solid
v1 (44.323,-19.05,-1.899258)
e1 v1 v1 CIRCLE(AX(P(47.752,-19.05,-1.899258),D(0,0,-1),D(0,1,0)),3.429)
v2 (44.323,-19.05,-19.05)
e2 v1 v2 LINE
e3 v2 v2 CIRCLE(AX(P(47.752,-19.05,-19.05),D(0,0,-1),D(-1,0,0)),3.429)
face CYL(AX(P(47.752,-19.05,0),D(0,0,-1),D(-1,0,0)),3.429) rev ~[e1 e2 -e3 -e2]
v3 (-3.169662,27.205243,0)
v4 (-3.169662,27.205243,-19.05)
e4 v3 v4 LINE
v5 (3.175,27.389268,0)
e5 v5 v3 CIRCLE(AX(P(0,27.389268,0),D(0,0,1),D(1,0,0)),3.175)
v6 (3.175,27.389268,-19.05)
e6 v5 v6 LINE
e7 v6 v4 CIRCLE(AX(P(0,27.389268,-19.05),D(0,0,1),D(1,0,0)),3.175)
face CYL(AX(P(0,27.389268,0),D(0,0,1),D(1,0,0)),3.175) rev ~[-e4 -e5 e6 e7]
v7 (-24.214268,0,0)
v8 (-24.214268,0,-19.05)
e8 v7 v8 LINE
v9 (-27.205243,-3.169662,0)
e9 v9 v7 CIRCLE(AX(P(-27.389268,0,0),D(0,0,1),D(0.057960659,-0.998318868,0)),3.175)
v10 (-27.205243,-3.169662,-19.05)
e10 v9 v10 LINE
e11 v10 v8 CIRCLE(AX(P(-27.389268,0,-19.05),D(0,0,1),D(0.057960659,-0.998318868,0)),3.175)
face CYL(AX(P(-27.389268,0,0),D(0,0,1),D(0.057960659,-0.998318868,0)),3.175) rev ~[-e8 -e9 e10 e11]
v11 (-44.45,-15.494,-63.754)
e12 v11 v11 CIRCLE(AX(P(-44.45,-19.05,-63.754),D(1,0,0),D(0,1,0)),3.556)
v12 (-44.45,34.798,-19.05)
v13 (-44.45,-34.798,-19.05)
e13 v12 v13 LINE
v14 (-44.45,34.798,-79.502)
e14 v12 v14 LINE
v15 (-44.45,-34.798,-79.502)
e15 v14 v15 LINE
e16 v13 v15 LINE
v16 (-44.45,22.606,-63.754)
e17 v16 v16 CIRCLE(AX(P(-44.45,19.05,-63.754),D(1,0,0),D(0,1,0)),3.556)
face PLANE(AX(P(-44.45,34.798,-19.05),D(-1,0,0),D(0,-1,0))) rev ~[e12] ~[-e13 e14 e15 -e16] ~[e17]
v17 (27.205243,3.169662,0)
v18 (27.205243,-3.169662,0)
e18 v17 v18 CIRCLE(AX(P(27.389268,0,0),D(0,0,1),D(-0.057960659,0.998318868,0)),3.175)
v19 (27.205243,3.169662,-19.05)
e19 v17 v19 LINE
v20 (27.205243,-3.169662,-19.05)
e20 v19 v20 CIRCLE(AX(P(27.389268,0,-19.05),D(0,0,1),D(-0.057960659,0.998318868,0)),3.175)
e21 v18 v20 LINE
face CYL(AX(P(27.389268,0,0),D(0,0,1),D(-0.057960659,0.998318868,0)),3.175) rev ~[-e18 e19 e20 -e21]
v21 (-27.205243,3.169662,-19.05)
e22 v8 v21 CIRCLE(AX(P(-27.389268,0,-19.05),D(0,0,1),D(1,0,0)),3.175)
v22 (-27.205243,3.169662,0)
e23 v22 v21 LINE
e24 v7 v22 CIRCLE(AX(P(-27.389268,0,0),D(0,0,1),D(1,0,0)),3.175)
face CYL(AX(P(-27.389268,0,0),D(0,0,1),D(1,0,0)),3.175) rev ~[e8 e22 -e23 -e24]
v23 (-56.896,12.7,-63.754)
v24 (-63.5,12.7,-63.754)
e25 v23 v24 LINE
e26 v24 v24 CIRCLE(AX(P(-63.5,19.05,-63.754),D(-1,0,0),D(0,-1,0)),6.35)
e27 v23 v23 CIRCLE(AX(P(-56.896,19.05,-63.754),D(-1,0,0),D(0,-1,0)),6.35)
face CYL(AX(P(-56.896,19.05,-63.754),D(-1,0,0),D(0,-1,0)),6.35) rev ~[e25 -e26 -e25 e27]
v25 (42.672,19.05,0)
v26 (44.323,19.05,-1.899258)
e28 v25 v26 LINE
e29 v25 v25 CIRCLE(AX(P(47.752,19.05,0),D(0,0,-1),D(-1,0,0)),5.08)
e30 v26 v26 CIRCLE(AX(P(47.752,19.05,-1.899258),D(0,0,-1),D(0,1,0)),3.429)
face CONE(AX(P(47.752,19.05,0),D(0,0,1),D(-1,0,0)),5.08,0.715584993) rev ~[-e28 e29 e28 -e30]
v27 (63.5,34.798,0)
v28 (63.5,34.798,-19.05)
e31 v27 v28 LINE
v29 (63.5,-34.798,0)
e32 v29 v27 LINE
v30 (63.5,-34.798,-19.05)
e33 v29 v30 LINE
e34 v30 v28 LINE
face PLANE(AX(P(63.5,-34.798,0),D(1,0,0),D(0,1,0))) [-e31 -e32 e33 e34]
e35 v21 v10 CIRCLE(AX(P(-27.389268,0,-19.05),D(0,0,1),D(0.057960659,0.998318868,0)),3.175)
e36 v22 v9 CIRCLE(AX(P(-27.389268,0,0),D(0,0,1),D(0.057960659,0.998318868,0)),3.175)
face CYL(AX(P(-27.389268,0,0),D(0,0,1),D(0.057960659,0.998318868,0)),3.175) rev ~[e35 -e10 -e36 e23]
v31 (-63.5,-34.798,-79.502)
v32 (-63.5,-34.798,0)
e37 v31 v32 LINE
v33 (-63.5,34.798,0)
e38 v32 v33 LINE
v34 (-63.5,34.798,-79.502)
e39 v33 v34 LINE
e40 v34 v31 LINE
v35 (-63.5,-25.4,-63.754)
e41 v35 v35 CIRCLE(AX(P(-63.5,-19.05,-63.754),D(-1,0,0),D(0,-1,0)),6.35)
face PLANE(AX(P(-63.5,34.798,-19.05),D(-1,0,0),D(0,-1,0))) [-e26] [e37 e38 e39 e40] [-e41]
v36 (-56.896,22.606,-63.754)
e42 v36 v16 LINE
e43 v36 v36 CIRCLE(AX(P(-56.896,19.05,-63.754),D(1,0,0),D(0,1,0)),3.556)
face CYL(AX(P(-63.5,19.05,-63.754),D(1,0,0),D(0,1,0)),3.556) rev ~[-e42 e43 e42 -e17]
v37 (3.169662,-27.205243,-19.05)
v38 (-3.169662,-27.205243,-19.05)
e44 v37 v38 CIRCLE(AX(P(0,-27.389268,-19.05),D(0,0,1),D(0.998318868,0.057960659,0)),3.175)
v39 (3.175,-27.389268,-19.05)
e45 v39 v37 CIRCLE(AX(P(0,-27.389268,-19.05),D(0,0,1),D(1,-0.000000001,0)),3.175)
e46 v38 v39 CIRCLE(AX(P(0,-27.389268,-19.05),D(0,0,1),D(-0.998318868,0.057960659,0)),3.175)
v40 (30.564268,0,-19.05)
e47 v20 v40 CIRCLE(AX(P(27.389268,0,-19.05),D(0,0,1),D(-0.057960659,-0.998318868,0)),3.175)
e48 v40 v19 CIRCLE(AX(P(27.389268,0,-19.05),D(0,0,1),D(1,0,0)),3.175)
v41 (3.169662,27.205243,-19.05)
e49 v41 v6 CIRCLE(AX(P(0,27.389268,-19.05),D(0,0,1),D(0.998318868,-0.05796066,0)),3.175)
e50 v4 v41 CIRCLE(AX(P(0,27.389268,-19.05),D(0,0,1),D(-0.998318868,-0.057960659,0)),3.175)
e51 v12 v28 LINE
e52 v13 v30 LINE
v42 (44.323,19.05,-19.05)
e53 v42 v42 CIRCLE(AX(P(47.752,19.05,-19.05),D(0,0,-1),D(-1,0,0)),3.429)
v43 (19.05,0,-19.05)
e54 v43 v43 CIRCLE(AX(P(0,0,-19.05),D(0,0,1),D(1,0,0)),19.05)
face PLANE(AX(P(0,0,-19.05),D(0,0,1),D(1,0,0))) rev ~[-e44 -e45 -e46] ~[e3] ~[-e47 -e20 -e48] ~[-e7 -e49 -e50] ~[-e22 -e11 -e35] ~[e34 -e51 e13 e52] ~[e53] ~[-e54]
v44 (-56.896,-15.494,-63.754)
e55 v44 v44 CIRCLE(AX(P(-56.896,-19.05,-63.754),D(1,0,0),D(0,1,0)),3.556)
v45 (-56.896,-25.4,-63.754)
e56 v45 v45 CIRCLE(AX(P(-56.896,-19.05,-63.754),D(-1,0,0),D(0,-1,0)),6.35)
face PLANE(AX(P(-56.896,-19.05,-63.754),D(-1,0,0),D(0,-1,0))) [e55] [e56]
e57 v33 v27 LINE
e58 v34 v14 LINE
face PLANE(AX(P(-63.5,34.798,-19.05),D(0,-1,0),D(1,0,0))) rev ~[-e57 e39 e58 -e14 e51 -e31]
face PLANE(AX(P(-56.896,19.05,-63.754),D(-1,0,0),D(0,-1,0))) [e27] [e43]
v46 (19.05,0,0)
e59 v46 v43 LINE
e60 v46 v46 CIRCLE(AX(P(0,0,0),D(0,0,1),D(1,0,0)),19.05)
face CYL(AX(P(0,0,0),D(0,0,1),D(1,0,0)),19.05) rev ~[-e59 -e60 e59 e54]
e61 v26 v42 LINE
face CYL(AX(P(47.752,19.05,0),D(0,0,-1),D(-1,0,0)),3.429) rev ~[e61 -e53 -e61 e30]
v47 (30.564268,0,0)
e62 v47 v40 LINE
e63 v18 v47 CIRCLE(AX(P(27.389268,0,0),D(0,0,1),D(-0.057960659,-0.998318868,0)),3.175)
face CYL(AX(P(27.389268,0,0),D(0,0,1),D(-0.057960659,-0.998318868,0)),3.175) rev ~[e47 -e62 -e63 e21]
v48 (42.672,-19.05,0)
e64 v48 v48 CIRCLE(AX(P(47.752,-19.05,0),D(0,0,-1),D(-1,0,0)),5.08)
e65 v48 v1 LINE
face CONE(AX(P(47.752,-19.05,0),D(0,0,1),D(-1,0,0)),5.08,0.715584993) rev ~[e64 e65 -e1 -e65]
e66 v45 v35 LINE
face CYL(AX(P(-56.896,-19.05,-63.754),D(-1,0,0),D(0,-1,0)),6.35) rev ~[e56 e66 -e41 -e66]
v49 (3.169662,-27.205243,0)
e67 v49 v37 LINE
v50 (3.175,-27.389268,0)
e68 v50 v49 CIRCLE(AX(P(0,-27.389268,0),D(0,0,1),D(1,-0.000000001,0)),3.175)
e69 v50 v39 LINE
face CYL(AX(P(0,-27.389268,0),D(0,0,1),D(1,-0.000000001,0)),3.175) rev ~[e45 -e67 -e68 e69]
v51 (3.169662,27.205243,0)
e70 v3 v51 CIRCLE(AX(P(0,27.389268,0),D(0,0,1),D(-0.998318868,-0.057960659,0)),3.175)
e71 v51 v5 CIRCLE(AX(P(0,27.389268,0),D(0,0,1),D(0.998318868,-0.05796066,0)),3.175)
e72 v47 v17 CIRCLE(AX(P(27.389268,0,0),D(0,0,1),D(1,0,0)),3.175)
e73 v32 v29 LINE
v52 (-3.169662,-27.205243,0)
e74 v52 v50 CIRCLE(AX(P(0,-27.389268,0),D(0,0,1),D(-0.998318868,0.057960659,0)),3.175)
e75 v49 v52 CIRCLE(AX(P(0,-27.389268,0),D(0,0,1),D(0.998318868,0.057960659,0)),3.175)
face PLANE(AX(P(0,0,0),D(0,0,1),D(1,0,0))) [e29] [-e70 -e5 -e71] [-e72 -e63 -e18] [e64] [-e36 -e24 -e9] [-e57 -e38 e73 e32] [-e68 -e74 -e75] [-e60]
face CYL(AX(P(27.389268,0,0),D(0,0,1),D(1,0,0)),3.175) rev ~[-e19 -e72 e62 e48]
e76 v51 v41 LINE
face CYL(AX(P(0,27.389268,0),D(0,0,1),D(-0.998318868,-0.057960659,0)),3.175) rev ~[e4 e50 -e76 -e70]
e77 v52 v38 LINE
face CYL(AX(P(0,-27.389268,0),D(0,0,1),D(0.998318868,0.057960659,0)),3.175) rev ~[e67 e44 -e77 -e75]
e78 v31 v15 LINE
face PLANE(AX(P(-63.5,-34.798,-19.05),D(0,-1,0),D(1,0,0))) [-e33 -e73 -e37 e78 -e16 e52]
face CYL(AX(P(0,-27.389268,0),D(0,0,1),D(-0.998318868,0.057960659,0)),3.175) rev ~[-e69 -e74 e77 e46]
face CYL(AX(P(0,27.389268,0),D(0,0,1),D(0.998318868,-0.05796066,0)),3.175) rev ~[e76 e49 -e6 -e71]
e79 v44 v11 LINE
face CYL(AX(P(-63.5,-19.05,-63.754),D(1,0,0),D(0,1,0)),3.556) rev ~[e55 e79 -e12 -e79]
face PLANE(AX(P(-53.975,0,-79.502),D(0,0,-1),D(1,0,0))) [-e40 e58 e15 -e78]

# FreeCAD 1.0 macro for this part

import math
import FreeCAD as App
import Part
import Sketcher
from FreeCAD import Vector
Q = App.Units.Quantity


def add_polygon(sketch, points):
    """Adds a closed chain of lines whose ends are joined by coincident constraints."""
    first, n = sketch.GeometryCount, len(points)
    for a, b in zip(points, points[1:] + points[:1]):
        sketch.addGeometry(Part.LineSegment(App.Vector(*a, 0), App.Vector(*b, 0)), False)
    for i in range(n):
        sketch.addConstraint(Sketcher.Constraint("Coincident", first + i, 2, first + (i + 1) % n, 1))

doc = App.newDocument("Part")
params = doc.addObject("Spreadsheet::Sheet", "Params")
for row, (alias, value) in enumerate([
    ("sketch1_width", "5 in"),
    ("sketch1_height", "2.74 in"),
    ("pad1_length", "0.75 in"),
    ("sketch2_width", "0.75 in"),
    ("sketch2_height", "2.74 in"),
    ("pad2_length", "2.38 in"),
    ("sketch3_diameter", "1.5 in"),
    ("pocket1_length", "1 in"),
    ("sketch4_radius", "0.125 in"),
    ("pocket2_length", "1 in"),
    ("sketch5_diameter", "0.27 in"),
    ("hole_diameter", "0.27 in"),
    ("hole_depth", "1 in"),
    ("hole_csink_diameter", "0.4 in"),
    ("sketch6_diameter", "0.28 in"),
    ("hole2_diameter", "0.28 in"),
    ("hole2_depth", "1 in"),
    ("hole2_cbore_diameter", "0.5 in"),
    ("hole2_cbore_depth", "0.26 in"),
], start=1):
    params.set(f"A{row}", alias)
    params.set(f"B{row}", "=" + value)
    params.setAlias(f"B{row}", alias)

body = doc.addObject("PartDesign::Body", "Body")

sketch1 = body.newObject("Sketcher::SketchObject", "Sketch")
sketch1.AttachmentSupport = (doc.getObject("XY_Plane"), [""])
sketch1.MapMode = "FlatFace"
add_polygon(sketch1, [(-64, 35), (-64, -35), (64, -35), (64, 35)])
sketch1.addConstraint([
    Sketcher.Constraint("Vertical", 0),
    Sketcher.Constraint("Horizontal", 1),
    Sketcher.Constraint("Vertical", 2),
    Sketcher.Constraint("Horizontal", 3),
    Sketcher.Constraint("Symmetric", 0, 2, 2, 2, -1, 1),
    Sketcher.Constraint("DistanceX", 1, 1, 1, 2, Q("5 in")),
    Sketcher.Constraint("DistanceY", 0, 2, 0, 1, Q("2.74 in")),
])
sketch1.setExpression("Constraints[9]", "Params.sketch1_width")
sketch1.setExpression("Constraints[10]", "Params.sketch1_height")
pad1 = body.newObject("PartDesign::Pad", "Pad")
pad1.Profile = sketch1
pad1.setExpression("Length", "Params.pad1_length")
pad1.Reversed = True

sketch2 = body.newObject("Sketcher::SketchObject", "Sketch001")
sketch2.AttachmentSupport = (doc.getObject("XY_Plane"), [""])
sketch2.MapMode = "FlatFace"
sketch2.AttachmentOffset = App.Placement(Vector(0, 0, -0.75 * 25.4), App.Rotation())
add_polygon(sketch2, [(-64, -35), (-64, 35), (-44, 35), (-44, -35)])
sketch2.addConstraint([
    Sketcher.Constraint("Vertical", 0),
    Sketcher.Constraint("Horizontal", 1),
    Sketcher.Constraint("Vertical", 2),
    Sketcher.Constraint("Horizontal", 3),
    Sketcher.Constraint("DistanceX", 1, 1, 1, 2, Q("0.75 in")),
    Sketcher.Constraint("DistanceY", 0, 1, 0, 2, Q("2.74 in")),
    Sketcher.Constraint("DistanceX", 0, 2, -1, 1, Q("2.5 in")),
    Sketcher.Constraint("DistanceY", -1, 1, 0, 2, Q("1.37 in")),
])
sketch2.setExpression("Constraints[8]", "Params.sketch2_width")
sketch2.setExpression("Constraints[9]", "Params.sketch2_height")
pad2 = body.newObject("PartDesign::Pad", "Pad001")
pad2.Profile = sketch2
pad2.setExpression("Length", "Params.pad2_length")
pad2.Reversed = True

sketch3 = body.newObject("Sketcher::SketchObject", "Sketch002")
sketch3.AttachmentSupport = (doc.getObject("XY_Plane"), [""])
sketch3.MapMode = "FlatFace"
sketch3.addGeometry(Part.Circle(Vector(0, 0, 0), Vector(0, 0, 1), 19), False)
sketch3.addConstraint([
    Sketcher.Constraint("Coincident", 0, 3, -1, 1),
    Sketcher.Constraint("Diameter", 0, Q("1.5 in")),
])
sketch3.setExpression("Constraints[1]", "Params.sketch3_diameter")
pocket1 = body.newObject("PartDesign::Pocket", "Pocket")
pocket1.Profile = sketch3
pocket1.setExpression("Length", "Params.pocket1_length")

sketch4 = body.newObject("Sketcher::SketchObject", "Sketch003")
sketch4.AttachmentSupport = (doc.getObject("XY_Plane"), [""])
sketch4.MapMode = "FlatFace"
sketch4.addGeometry([
    Part.ArcOfCircle(Part.Circle(Vector(0, 27.39, 0), Vector(0, 0, 1), 3.17), math.radians(-177), math.radians(-3)),
    Part.ArcOfCircle(Part.Circle(Vector(0, 27.39, 0), Vector(0, 0, 1), 3.17), math.radians(-3.32), math.radians(0)),
    Part.ArcOfCircle(Part.Circle(Vector(0, 27.39, 0), Vector(0, 0, 1), 3.17), math.radians(0), math.radians(183)),
    Part.ArcOfCircle(Part.Circle(Vector(27.39, 0, 0), Vector(0, 0, 1), 3.17), math.radians(-93), math.radians(0)),
    Part.ArcOfCircle(Part.Circle(Vector(27.39, 0, 0), Vector(0, 0, 1), 3.17), math.radians(0), math.radians(93)),
    Part.ArcOfCircle(Part.Circle(Vector(27.39, 0, 0), Vector(0, 0, 1), 3.17), math.radians(93), math.radians(267)),
    Part.ArcOfCircle(Part.Circle(Vector(0, -27.39, 0), Vector(0, 0, 1), 3.17), math.radians(0), math.radians(3.32)),
    Part.ArcOfCircle(Part.Circle(Vector(0, -27.39, 0), Vector(0, 0, 1), 3.17), math.radians(3), math.radians(177)),
    Part.ArcOfCircle(Part.Circle(Vector(0, -27.39, 0), Vector(0, 0, 1), 3.17), math.radians(177), math.radians(360)),
    Part.ArcOfCircle(Part.Circle(Vector(-27.39, 0, 0), Vector(0, 0, 1), 3.17), math.radians(0), math.radians(87)),
    Part.ArcOfCircle(Part.Circle(Vector(-27.39, 0, 0), Vector(0, 0, 1), 3.17), math.radians(87), math.radians(273)),
    Part.ArcOfCircle(Part.Circle(Vector(-27.39, 0, 0), Vector(0, 0, 1), 3.17), math.radians(-87), math.radians(0)),
], False)
sketch4.addConstraint([
    Sketcher.Constraint("Tangent", 0, 2, 1, 1),
    Sketcher.Constraint("Tangent", 1, 2, 2, 1),
    Sketcher.Constraint("Tangent", 2, 2, 0, 1),
    Sketcher.Constraint("Tangent", 3, 2, 4, 1),
    Sketcher.Constraint("Tangent", 4, 2, 5, 1),
    Sketcher.Constraint("Tangent", 5, 2, 3, 1),
    Sketcher.Constraint("Tangent", 6, 2, 7, 1),
    Sketcher.Constraint("Tangent", 7, 2, 8, 1),
    Sketcher.Constraint("Tangent", 8, 2, 6, 1),
    Sketcher.Constraint("Tangent", 9, 2, 10, 1),
    Sketcher.Constraint("Tangent", 10, 2, 11, 1),
    Sketcher.Constraint("Tangent", 11, 2, 9, 1),
    Sketcher.Constraint("Equal", 2, 3),
    Sketcher.Constraint("Equal", 5, 6),
    Sketcher.Constraint("Equal", 8, 9),
    Sketcher.Constraint("Symmetric", 0, 3, 6, 3, -1, 1),
    Sketcher.Constraint("Symmetric", 3, 3, 9, 3, -1, 1),
    Sketcher.Constraint("Symmetric", 0, 2, 2, 2, -2),
    Sketcher.Constraint("Symmetric", 4, 2, 9, 2, -2),
    Sketcher.Constraint("PointOnObject", 3, 2, -1),
    Sketcher.Constraint("PointOnObject", 11, 2, -1),
    Sketcher.Constraint("Horizontal", 2, 3, 1, 2),
    Sketcher.Constraint("Horizontal", 6, 2, 7, 2),
    Sketcher.Constraint("Horizontal", 7, 3, 8, 2),
    Sketcher.Constraint("Horizontal", 5, 2, 10, 2),
    Sketcher.Constraint("Vertical", 4, 2, 5, 2),
    Sketcher.Constraint("Vertical", 0, 2, 6, 2),
    Sketcher.Constraint("Radius", 0, Q("0.125 in")),
    Sketcher.Constraint("DistanceX", 0, 2, 4, 2, Q("24.03558 mm")),
    Sketcher.Constraint("DistanceY", 4, 2, 0, 2, Q("24.03558 mm")),
    Sketcher.Constraint("DistanceY", -1, 1, 0, 3, Q("27.389268 mm")),
    Sketcher.Constraint("DistanceX", -1, 1, 3, 3, Q("27.389268 mm")),
])
sketch4.setExpression("Constraints[27]", "Params.sketch4_radius")
pocket2 = body.newObject("PartDesign::Pocket", "Pocket001")
pocket2.Profile = sketch4
pocket2.setExpression("Length", "Params.pocket2_length")

sketch5 = body.newObject("Sketcher::SketchObject", "Sketch004")
sketch5.AttachmentSupport = (doc.getObject("XY_Plane"), [""])
sketch5.MapMode = "FlatFace"
sketch5.addGeometry([
    Part.Circle(Vector(47.8, 19.1, 0), Vector(0, 0, 1), 3.4),
    Part.Circle(Vector(47.8, -19.1, 0), Vector(0, 0, 1), 3.4),
], False)
sketch5.addConstraint([
    Sketcher.Constraint("Equal", 0, 1),
    Sketcher.Constraint("Symmetric", 0, 3, 1, 3, -1),
    Sketcher.Constraint("Diameter", 0, Q("0.27 in")),
    Sketcher.Constraint("DistanceY", 1, 3, 0, 3, Q("1.5 in")),
    Sketcher.Constraint("DistanceX", -1, 1, 0, 3, Q("1.88 in")),
])
sketch5.setExpression("Constraints[2]", "Params.sketch5_diameter")
doc.recompute()
hole = body.newObject("PartDesign::Hole", "Hole")
hole.Profile = sketch5
hole.ThreadType = "None"
hole.setExpression("Diameter", "Params.hole_diameter")
hole.DepthType = "Dimension"
hole.setExpression("Depth", "Params.hole_depth")
hole.DrillPoint = "Angled"
hole.DrillPointAngle = 118
hole.HoleCutType = "Countersink"
hole.setExpression("HoleCutDiameter", "Params.hole_csink_diameter")
hole.HoleCutCountersinkAngle = 82

sketch6 = body.newObject("Sketcher::SketchObject", "Sketch005")
sketch6.AttachmentSupport = (doc.getObject("YZ_Plane"), [""])
sketch6.MapMode = "FlatFace"
sketch6.AttachmentOffset = App.Placement(Vector(0, 0, -2.5 * 25.4), App.Rotation())
sketch6.addGeometry([
    Part.Circle(Vector(19.1, -63.8, 0), Vector(0, 0, 1), 3.6),
    Part.Circle(Vector(-19.1, -63.8, 0), Vector(0, 0, 1), 3.6),
], False)
sketch6.addConstraint([
    Sketcher.Constraint("Equal", 0, 1),
    Sketcher.Constraint("Symmetric", 0, 3, 1, 3, -2),
    Sketcher.Constraint("Diameter", 0, Q("0.28 in")),
    Sketcher.Constraint("DistanceX", 1, 3, 0, 3, Q("1.5 in")),
    Sketcher.Constraint("DistanceY", 0, 3, -1, 1, Q("2.51 in")),
])
sketch6.setExpression("Constraints[2]", "Params.sketch6_diameter")
doc.recompute()
hole2 = body.newObject("PartDesign::Hole", "Hole001")
hole2.Profile = sketch6
hole2.ThreadType = "None"
hole2.setExpression("Diameter", "Params.hole2_diameter")
hole2.DepthType = "Dimension"
hole2.setExpression("Depth", "Params.hole2_depth")
hole2.DrillPoint = "Angled"
hole2.DrillPointAngle = 118
hole2.HoleCutType = "Counterbore"
hole2.setExpression("HoleCutDiameter", "Params.hole2_cbore_diameter")
hole2.setExpression("HoleCutDepth", "Params.hole2_cbore_depth")
hole2.Reversed = True

doc.recompute()
